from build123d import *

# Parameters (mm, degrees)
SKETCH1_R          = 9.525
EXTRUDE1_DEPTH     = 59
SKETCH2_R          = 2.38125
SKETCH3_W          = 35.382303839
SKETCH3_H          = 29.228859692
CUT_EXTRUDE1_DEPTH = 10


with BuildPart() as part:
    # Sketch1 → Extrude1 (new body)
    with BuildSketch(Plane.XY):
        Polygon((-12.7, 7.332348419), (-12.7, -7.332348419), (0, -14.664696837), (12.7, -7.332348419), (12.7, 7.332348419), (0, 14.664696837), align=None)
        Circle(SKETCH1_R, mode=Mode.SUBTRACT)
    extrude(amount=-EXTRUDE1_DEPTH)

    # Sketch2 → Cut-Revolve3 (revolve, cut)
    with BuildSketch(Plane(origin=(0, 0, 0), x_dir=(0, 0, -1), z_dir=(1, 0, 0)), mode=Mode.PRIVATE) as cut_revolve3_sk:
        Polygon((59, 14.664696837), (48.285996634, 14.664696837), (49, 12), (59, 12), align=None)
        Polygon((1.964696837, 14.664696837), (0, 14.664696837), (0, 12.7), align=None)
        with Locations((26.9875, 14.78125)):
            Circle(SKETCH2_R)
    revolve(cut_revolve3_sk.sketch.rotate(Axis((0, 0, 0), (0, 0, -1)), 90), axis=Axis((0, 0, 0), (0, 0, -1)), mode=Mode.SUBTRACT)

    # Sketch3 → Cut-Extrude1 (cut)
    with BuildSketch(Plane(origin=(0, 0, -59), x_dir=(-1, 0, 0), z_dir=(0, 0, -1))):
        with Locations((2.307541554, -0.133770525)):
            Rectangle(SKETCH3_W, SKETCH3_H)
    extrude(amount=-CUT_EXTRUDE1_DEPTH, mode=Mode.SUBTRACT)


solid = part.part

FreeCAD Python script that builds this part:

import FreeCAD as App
import Part
import Sketcher
from FreeCAD import Vector
Q = App.Units.Quantity

doc = App.newDocument("Part")
body = doc.addObject("PartDesign::Body", "Body")

sketch1 = doc.addObject("Sketcher::SketchObject", "Sketch")
body.addObject(sketch1)
sketch1.AttachmentSupport = (doc.XY_Plane, [""])
sketch1.MapMode = "FlatFace"
sketch1.addGeometry(Part.LineSegment(Vector(-13, 7, 0), Vector(-13, -7, 0)), False)
sketch1.addGeometry(Part.LineSegment(Vector(-13, -7, 0), Vector(0, -15, 0)), False)
sketch1.addGeometry(Part.LineSegment(Vector(0, -15, 0), Vector(13, -7, 0)), False)
sketch1.addGeometry(Part.LineSegment(Vector(13, -7, 0), Vector(13, 7, 0)), False)
sketch1.addGeometry(Part.LineSegment(Vector(13, 7, 0), Vector(0, 15, 0)), False)
sketch1.addGeometry(Part.LineSegment(Vector(0, 15, 0), Vector(-13, 7, 0)), False)
sketch1.addGeometry(Part.Circle(Vector(0, 0, 0), Vector(0, 0, 1), 10), False)
sketch1.addConstraint(Sketcher.Constraint("Coincident", 0, 2, 1, 1))
sketch1.addConstraint(Sketcher.Constraint("Coincident", 1, 2, 2, 1))
sketch1.addConstraint(Sketcher.Constraint("Coincident", 2, 2, 3, 1))
sketch1.addConstraint(Sketcher.Constraint("Coincident", 3, 2, 4, 1))
sketch1.addConstraint(Sketcher.Constraint("Coincident", 4, 2, 5, 1))
sketch1.addConstraint(Sketcher.Constraint("Coincident", 5, 2, 0, 1))
sketch1.addConstraint(Sketcher.Constraint("Vertical", 0))
sketch1.addConstraint(Sketcher.Constraint("Vertical", 3))
sketch1.addConstraint(Sketcher.Constraint("Coincident", 6, 3, -1, 1))
sketch1.addConstraint(Sketcher.Constraint("Symmetric", 0, 2, 3, 2, -1, 1))
sketch1.addConstraint(Sketcher.Constraint("Symmetric", 1, 2, 4, 2, -1, 1))
sketch1.addConstraint(Sketcher.Constraint("PointOnObject", 1, 2, -2))
sketch1.addConstraint(Sketcher.Constraint("Parallel", 2, 5))
sketch1.addConstraint(Sketcher.Constraint("Horizontal", 0, 2, 2, 2))
sketch1.addConstraint(Sketcher.Constraint("Diameter", 6, 19.05))
sketch1.addConstraint(Sketcher.Constraint("Angle", 1, Q("-30 deg")))
sketch1.addConstraint(Sketcher.Constraint("DistanceX", 0, 2, -1, 1, 12.7))
sketch1.addConstraint(Sketcher.Constraint("DistanceY", 0, 2, 0, 1, 14.664697))
pad1 = doc.addObject("PartDesign::Pad", "Pad")
body.addObject(pad1)
pad1.Profile = sketch1
pad1.Length = 59
pad1.Reversed = True

sketch2 = doc.addObject("Sketcher::SketchObject", "Sketch001")
body.addObject(sketch2)
sketch2.AttachmentSupport = (doc.YZ_Plane, [""])
sketch2.MapMode = "FlatFace"
sketch2.addGeometry(Part.LineSegment(Vector(14.7, -59, 0), Vector(14.7, -48.3, 0)), False)
sketch2.addGeometry(Part.LineSegment(Vector(14.7, -48.3, 0), Vector(12, -49, 0)), False)
sketch2.addGeometry(Part.LineSegment(Vector(12, -49, 0), Vector(12, -59, 0)), False)
sketch2.addGeometry(Part.LineSegment(Vector(12, -59, 0), Vector(14.7, -59, 0)), False)
sketch2.addGeometry(Part.LineSegment(Vector(14.7, -2, 0), Vector(14.7, 0, 0)), False)
sketch2.addGeometry(Part.LineSegment(Vector(14.7, 0, 0), Vector(12.7, 0, 0)), False)
sketch2.addGeometry(Part.LineSegment(Vector(12.7, 0, 0), Vector(14.7, -2, 0)), False)
sketch2.addGeometry(Part.Circle(Vector(14.8, -27, 0), Vector(0, 0, 1), 2.4), False)
sketch2.addConstraint(Sketcher.Constraint("Coincident", 0, 2, 1, 1))
sketch2.addConstraint(Sketcher.Constraint("Coincident", 1, 2, 2, 1))
sketch2.addConstraint(Sketcher.Constraint("Coincident", 2, 2, 3, 1))
sketch2.addConstraint(Sketcher.Constraint("Coincident", 3, 2, 0, 1))
sketch2.addConstraint(Sketcher.Constraint("Coincident", 4, 2, 5, 1))
sketch2.addConstraint(Sketcher.Constraint("Coincident", 5, 2, 6, 1))
sketch2.addConstraint(Sketcher.Constraint("Coincident", 6, 2, 4, 1))
sketch2.addConstraint(Sketcher.Constraint("Vertical", 0))
sketch2.addConstraint(Sketcher.Constraint("Vertical", 2))
sketch2.addConstraint(Sketcher.Constraint("Horizontal", 3))
sketch2.addConstraint(Sketcher.Constraint("Vertical", 4))
sketch2.addConstraint(Sketcher.Constraint("Horizontal", 5))
sketch2.addConstraint(Sketcher.Constraint("PointOnObject", 4, 2, -1))
sketch2.addConstraint(Sketcher.Constraint("Vertical", 3, 2, 4, 2))
sketch2.addConstraint(Sketcher.Constraint("Equal", 5, 4))
sketch2.addConstraint(Sketcher.Constraint("DistanceY", 2, 2, 2, 1, 10.0))
sketch2.addConstraint(Sketcher.Constraint("Angle", 1, Q("-165 deg")))
sketch2.addConstraint(Sketcher.Constraint("DistanceX", -1, 1, 1, 2, 12.0))
sketch2.addConstraint(Sketcher.Constraint("DistanceY", 1, 2, -1, 1, 49.0))
sketch2.addConstraint(Sketcher.Constraint("Diameter", 7, 4.7625))
sketch2.addConstraint(Sketcher.Constraint("DistanceX", -1, 1, 5, 2, 12.7))
sketch2.addConstraint(Sketcher.Constraint("Distance", 6, 2.778501))
sketch2.addConstraint(Sketcher.Constraint("DistanceY", 7, 3, -1, 1, 26.9875))
sketch2.addConstraint(Sketcher.Constraint("DistanceX", -1, 1, 7, 3, 14.78125))
groove = doc.addObject("PartDesign::Groove", "Groove")
body.addObject(groove)
groove.Profile = sketch2
groove.ReferenceAxis = (sketch2, ["V_Axis"])
groove.Angle = 360

sketch3 = doc.addObject("Sketcher::SketchObject", "Sketch002")
body.addObject(sketch3)
sketch3.AttachmentSupport = (doc.XY_Plane, [""])
sketch3.MapMode = "FlatFace"
sketch3.AttachmentOffset = App.Placement(Vector(0, 0, -59), App.Rotation())
sketch3.addGeometry(Part.LineSegment(Vector(15, 14, 0), Vector(15, -15, 0)), False)
sketch3.addGeometry(Part.LineSegment(Vector(15, -15, 0), Vector(-20, -15, 0)), False)
sketch3.addGeometry(Part.LineSegment(Vector(-20, -15, 0), Vector(-20, 14, 0)), False)
sketch3.addGeometry(Part.LineSegment(Vector(-20, 14, 0), Vector(15, 14, 0)), False)
sketch3.addConstraint(Sketcher.Constraint("Coincident", 0, 2, 1, 1))
sketch3.addConstraint(Sketcher.Constraint("Coincident", 1, 2, 2, 1))
sketch3.addConstraint(Sketcher.Constraint("Coincident", 2, 2, 3, 1))
sketch3.addConstraint(Sketcher.Constraint("Coincident", 3, 2, 0, 1))
sketch3.addConstraint(Sketcher.Constraint("Vertical", 0))
sketch3.addConstraint(Sketcher.Constraint("Horizontal", 1))
sketch3.addConstraint(Sketcher.Constraint("Vertical", 2))
sketch3.addConstraint(Sketcher.Constraint("Horizontal", 3))
sketch3.addConstraint(Sketcher.Constraint("DistanceY", 0, 2, 0, 1, 29.22886))
sketch3.addConstraint(Sketcher.Constraint("DistanceY", 0, 2, -1, 1, 14.7482))
sketch3.addConstraint(Sketcher.Constraint("DistanceX", 1, 2, 1, 1, 35.382304))
sketch3.addConstraint(Sketcher.Constraint("DistanceX", -1, 1, 0, 2, 15.38361))
pocket1 = doc.addObject("PartDesign::Pocket", "Pocket")
body.addObject(pocket1)
pocket1.Profile = sketch3
pocket1.Length = 10
pocket1.Reversed = True

doc.recompute()
